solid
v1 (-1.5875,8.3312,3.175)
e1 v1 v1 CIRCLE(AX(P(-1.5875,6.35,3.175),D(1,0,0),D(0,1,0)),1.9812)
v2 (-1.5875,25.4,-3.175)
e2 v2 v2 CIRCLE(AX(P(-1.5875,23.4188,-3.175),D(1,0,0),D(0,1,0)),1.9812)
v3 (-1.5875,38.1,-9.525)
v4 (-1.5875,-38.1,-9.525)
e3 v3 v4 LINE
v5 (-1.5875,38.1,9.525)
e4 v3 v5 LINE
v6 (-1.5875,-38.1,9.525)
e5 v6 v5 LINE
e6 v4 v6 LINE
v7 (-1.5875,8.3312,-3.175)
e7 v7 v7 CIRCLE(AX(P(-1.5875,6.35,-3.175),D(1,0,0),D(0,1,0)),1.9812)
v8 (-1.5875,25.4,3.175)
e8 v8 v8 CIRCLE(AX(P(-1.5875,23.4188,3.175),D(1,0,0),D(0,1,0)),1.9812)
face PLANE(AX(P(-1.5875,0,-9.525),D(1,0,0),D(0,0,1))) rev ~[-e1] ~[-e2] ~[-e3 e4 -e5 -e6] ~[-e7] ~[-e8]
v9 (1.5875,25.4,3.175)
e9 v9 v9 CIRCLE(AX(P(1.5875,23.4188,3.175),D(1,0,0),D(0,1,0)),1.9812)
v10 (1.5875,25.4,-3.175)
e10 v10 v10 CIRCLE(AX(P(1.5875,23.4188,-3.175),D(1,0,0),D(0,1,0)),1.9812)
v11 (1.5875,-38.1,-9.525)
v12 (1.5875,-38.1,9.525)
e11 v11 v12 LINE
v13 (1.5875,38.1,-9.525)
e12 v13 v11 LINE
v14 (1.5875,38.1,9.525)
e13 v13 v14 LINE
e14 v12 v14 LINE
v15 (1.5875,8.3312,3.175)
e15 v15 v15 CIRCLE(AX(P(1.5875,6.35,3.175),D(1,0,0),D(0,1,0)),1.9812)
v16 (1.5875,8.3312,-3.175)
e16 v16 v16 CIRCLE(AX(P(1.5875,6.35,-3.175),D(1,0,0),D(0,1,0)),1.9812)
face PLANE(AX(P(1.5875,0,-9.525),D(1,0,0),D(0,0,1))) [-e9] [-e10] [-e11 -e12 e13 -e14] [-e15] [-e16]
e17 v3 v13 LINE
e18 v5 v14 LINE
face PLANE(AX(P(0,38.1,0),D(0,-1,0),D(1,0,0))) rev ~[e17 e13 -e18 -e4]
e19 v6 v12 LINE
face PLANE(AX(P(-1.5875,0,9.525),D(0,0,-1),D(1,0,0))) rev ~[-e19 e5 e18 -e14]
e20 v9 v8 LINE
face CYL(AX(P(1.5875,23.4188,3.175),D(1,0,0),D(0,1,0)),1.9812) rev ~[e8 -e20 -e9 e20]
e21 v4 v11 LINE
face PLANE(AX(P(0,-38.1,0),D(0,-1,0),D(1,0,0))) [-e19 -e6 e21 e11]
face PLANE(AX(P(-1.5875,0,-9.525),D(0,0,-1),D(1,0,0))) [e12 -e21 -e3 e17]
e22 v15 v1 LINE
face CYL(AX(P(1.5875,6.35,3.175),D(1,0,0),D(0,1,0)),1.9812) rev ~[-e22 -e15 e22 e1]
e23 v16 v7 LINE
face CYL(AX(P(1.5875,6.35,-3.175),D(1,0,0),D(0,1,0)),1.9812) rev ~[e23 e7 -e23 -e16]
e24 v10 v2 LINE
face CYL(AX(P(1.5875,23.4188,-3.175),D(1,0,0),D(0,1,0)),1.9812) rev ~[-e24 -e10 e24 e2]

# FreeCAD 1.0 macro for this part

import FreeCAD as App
import Part
import Sketcher
Q = App.Units.Quantity

doc = App.newDocument("Part")
body = doc.addObject("PartDesign::Body", "Body")

# Sketch on XZ plane
sketch1 = body.newObject("Sketcher::SketchObject", "Sketch")
sketch1.AttachmentSupport = (doc.getObject("XZ_Plane"), [""])
sketch1.MapMode = "FlatFace"
sketch1.addGeometry(Part.LineSegment(App.Vector(-1.6, 9.5, 0), App.Vector(-1.6, -9.5, 0)), False)
sketch1.addGeometry(Part.LineSegment(App.Vector(-1.6, -9.5, 0), App.Vector(1.6, -9.5, 0)), False)
sketch1.addGeometry(Part.LineSegment(App.Vector(1.6, -9.5, 0), App.Vector(1.6, 9.5, 0)), False)
sketch1.addGeometry(Part.LineSegment(App.Vector(1.6, 9.5, 0), App.Vector(-1.6, 9.5, 0)), False)
sketch1.addConstraint(Sketcher.Constraint("Coincident", 0, 2, 1, 1))
sketch1.addConstraint(Sketcher.Constraint("Coincident", 1, 2, 2, 1))
sketch1.addConstraint(Sketcher.Constraint("Coincident", 2, 2, 3, 1))
sketch1.addConstraint(Sketcher.Constraint("Coincident", 3, 2, 0, 1))
sketch1.addConstraint(Sketcher.Constraint("Vertical", 0))
sketch1.addConstraint(Sketcher.Constraint("Horizontal", 1))
sketch1.addConstraint(Sketcher.Constraint("Vertical", 2))
sketch1.addConstraint(Sketcher.Constraint("Horizontal", 3))
sketch1.addConstraint(Sketcher.Constraint("Symmetric", 0, 2, 2, 2, -1, 1))
sketch1.addConstraint(Sketcher.Constraint("DistanceY", 0, 2, 0, 1, Q("0.75 in")))
sketch1.addConstraint(Sketcher.Constraint("DistanceX", 1, 1, 1, 2, Q("0.125 in")))
pad1 = body.newObject("PartDesign::Pad", "Pad")
pad1.Profile = sketch1
pad1.Length = Q("3 in")
pad1.Midplane = True

# Sketch on YZ plane
sketch2 = body.newObject("Sketcher::SketchObject", "Sketch001")
sketch2.AttachmentSupport = (doc.getObject("YZ_Plane"), [""])
sketch2.MapMode = "FlatFace"
sketch2.AttachmentOffset = App.Placement(App.Vector(0, 0, 0.0625 * 25.4), App.Rotation())
sketch2.addGeometry(Part.Circle(App.Vector(23.4, 3.2, 0), App.Vector(0, 0, 1), 2), False)
sketch2.addGeometry(Part.Circle(App.Vector(23.4, -3.2, 0), App.Vector(0, 0, 1), 2), False)
sketch2.addConstraint(Sketcher.Constraint("Equal", 0, 1))
sketch2.addConstraint(Sketcher.Constraint("Symmetric", 0, 3, 1, 3, -1))
sketch2.addConstraint(Sketcher.Constraint("Diameter", 0, Q("0.156 in")))
sketch2.addConstraint(Sketcher.Constraint("DistanceY", 1, 3, 0, 3, Q("0.25 in")))
sketch2.addConstraint(Sketcher.Constraint("DistanceX", -1, 1, 0, 3, Q("0.922 in")))
pocket1 = body.newObject("PartDesign::Pocket", "Pocket")
pocket1.Profile = sketch2
pocket1.Type = "ThroughAll"

# Sketch on YZ plane
sketch3 = body.newObject("Sketcher::SketchObject", "Sketch002")
sketch3.AttachmentSupport = (doc.getObject("YZ_Plane"), [""])
sketch3.MapMode = "FlatFace"
sketch3.AttachmentOffset = App.Placement(App.Vector(0, 0, 0.0625 * 25.4), App.Rotation())
sketch3.addGeometry(Part.Circle(App.Vector(6.3, 3.2, 0), App.Vector(0, 0, 1), 2), False)
sketch3.addGeometry(Part.Circle(App.Vector(6.3, -3.2, 0), App.Vector(0, 0, 1), 2), False)
sketch3.addConstraint(Sketcher.Constraint("Equal", 0, 1))
sketch3.addConstraint(Sketcher.Constraint("Symmetric", 0, 3, 1, 3, -1))
sketch3.addConstraint(Sketcher.Constraint("Diameter", 0, Q("0.156 in")))
sketch3.addConstraint(Sketcher.Constraint("DistanceX", -1, 1, 0, 3, Q("0.25 in")))
sketch3.addConstraint(Sketcher.Constraint("DistanceY", 1, 3, 0, 3, Q("0.25 in")))
pocket2 = body.newObject("PartDesign::Pocket", "Pocket001")
pocket2.Profile = sketch3
pocket2.Type = "ThroughAll"

doc.recompute()
